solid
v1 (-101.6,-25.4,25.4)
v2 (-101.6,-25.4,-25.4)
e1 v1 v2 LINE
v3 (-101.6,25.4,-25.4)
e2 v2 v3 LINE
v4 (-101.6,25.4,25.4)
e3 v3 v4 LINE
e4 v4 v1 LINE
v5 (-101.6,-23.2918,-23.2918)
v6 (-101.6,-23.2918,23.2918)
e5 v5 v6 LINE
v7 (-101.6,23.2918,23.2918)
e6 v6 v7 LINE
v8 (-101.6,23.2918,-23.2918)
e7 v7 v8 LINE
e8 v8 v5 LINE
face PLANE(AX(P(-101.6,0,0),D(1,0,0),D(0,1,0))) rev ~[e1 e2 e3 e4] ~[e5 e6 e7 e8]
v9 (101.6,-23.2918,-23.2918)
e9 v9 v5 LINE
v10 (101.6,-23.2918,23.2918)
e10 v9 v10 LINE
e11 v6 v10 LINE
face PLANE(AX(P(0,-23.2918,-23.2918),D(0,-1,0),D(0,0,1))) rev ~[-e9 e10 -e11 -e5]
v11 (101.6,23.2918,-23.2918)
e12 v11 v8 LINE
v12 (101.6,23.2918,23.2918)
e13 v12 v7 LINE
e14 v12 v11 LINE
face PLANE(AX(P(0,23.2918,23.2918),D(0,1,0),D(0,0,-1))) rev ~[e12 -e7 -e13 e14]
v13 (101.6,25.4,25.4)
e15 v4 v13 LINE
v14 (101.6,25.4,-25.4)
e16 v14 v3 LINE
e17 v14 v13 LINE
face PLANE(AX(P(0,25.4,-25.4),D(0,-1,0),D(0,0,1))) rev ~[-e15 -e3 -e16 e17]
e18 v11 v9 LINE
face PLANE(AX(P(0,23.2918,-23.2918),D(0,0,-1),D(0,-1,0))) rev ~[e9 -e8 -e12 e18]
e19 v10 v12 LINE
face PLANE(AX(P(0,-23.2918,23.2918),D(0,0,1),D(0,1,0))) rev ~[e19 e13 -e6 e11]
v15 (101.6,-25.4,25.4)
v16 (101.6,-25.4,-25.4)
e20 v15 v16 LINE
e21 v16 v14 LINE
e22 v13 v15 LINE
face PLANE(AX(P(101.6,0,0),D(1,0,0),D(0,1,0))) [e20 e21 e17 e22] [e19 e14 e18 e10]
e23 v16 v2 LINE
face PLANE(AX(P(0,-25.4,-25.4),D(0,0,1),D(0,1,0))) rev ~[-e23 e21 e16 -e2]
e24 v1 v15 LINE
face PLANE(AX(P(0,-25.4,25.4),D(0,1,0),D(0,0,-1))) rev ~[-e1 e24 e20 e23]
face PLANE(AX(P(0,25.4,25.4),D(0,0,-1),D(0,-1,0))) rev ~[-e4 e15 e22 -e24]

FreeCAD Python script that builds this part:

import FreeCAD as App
import Part
import Sketcher

V = App.Vector
Q = App.Units.Quantity

doc = App.newDocument("Part")
body = doc.addObject("PartDesign::Body", "Body")

sketch1 = body.newObject("Sketcher::SketchObject", "Sketch")
sketch1.AttachmentSupport = (doc.getObject("YZ_Plane"), [""])
sketch1.MapMode = "FlatFace"
sketch1.addGeometry([
    Part.LineSegment(V(25.4, -25.4, 0), V(25.4, 25.4, 0)),
    Part.LineSegment(V(25.4, 25.4, 0), V(-25.4, 25.4, 0)),
    Part.LineSegment(V(-25.4, 25.4, 0), V(-25.4, -25.4, 0)),
    Part.LineSegment(V(-25.4, -25.4, 0), V(25.4, -25.4, 0)),
    Part.LineSegment(V(-23.2918, -23.2918, 0), V(-23.2918, 23.2918, 0)),
    Part.LineSegment(V(-23.2918, 23.2918, 0), V(23.2918, 23.2918, 0)),
    Part.LineSegment(V(23.2918, 23.2918, 0), V(23.2918, -23.2918, 0)),
    Part.LineSegment(V(23.2918, -23.2918, 0), V(-23.2918, -23.2918, 0)),
], False)
sketch1.addConstraint([
    Sketcher.Constraint("Coincident", 0, 2, 1, 1),
    Sketcher.Constraint("Coincident", 1, 2, 2, 1),
    Sketcher.Constraint("Coincident", 2, 2, 3, 1),
    Sketcher.Constraint("Coincident", 3, 2, 0, 1),
    Sketcher.Constraint("Coincident", 4, 2, 5, 1),
    Sketcher.Constraint("Coincident", 5, 2, 6, 1),
    Sketcher.Constraint("Coincident", 6, 2, 7, 1),
    Sketcher.Constraint("Coincident", 7, 2, 4, 1),
    Sketcher.Constraint("Vertical", 0),
    Sketcher.Constraint("Horizontal", 1),
    Sketcher.Constraint("Vertical", 2),
    Sketcher.Constraint("Horizontal", 3),
    Sketcher.Constraint("Vertical", 4),
    Sketcher.Constraint("Horizontal", 5),
    Sketcher.Constraint("Vertical", 6),
    Sketcher.Constraint("Horizontal", 7),
    Sketcher.Constraint("Symmetric", 0, 2, 2, 2, -1, 1),
    Sketcher.Constraint("Symmetric", 4, 2, 6, 2, -1, 1),
    Sketcher.Constraint("Equal", 3, 0),
    Sketcher.Constraint("Equal", 7, 4),
    Sketcher.Constraint("DistanceX", 1, 2, 1, 1, Q("2 in")),
    Sketcher.Constraint("DistanceX", 1, 2, 4, 2, Q("0.083 in")),
])
pad1 = body.newObject("PartDesign::Pad", "Pad")
pad1.Profile = sketch1
pad1.Length = Q("8 in")
pad1.Midplane = True

doc.recompute()
